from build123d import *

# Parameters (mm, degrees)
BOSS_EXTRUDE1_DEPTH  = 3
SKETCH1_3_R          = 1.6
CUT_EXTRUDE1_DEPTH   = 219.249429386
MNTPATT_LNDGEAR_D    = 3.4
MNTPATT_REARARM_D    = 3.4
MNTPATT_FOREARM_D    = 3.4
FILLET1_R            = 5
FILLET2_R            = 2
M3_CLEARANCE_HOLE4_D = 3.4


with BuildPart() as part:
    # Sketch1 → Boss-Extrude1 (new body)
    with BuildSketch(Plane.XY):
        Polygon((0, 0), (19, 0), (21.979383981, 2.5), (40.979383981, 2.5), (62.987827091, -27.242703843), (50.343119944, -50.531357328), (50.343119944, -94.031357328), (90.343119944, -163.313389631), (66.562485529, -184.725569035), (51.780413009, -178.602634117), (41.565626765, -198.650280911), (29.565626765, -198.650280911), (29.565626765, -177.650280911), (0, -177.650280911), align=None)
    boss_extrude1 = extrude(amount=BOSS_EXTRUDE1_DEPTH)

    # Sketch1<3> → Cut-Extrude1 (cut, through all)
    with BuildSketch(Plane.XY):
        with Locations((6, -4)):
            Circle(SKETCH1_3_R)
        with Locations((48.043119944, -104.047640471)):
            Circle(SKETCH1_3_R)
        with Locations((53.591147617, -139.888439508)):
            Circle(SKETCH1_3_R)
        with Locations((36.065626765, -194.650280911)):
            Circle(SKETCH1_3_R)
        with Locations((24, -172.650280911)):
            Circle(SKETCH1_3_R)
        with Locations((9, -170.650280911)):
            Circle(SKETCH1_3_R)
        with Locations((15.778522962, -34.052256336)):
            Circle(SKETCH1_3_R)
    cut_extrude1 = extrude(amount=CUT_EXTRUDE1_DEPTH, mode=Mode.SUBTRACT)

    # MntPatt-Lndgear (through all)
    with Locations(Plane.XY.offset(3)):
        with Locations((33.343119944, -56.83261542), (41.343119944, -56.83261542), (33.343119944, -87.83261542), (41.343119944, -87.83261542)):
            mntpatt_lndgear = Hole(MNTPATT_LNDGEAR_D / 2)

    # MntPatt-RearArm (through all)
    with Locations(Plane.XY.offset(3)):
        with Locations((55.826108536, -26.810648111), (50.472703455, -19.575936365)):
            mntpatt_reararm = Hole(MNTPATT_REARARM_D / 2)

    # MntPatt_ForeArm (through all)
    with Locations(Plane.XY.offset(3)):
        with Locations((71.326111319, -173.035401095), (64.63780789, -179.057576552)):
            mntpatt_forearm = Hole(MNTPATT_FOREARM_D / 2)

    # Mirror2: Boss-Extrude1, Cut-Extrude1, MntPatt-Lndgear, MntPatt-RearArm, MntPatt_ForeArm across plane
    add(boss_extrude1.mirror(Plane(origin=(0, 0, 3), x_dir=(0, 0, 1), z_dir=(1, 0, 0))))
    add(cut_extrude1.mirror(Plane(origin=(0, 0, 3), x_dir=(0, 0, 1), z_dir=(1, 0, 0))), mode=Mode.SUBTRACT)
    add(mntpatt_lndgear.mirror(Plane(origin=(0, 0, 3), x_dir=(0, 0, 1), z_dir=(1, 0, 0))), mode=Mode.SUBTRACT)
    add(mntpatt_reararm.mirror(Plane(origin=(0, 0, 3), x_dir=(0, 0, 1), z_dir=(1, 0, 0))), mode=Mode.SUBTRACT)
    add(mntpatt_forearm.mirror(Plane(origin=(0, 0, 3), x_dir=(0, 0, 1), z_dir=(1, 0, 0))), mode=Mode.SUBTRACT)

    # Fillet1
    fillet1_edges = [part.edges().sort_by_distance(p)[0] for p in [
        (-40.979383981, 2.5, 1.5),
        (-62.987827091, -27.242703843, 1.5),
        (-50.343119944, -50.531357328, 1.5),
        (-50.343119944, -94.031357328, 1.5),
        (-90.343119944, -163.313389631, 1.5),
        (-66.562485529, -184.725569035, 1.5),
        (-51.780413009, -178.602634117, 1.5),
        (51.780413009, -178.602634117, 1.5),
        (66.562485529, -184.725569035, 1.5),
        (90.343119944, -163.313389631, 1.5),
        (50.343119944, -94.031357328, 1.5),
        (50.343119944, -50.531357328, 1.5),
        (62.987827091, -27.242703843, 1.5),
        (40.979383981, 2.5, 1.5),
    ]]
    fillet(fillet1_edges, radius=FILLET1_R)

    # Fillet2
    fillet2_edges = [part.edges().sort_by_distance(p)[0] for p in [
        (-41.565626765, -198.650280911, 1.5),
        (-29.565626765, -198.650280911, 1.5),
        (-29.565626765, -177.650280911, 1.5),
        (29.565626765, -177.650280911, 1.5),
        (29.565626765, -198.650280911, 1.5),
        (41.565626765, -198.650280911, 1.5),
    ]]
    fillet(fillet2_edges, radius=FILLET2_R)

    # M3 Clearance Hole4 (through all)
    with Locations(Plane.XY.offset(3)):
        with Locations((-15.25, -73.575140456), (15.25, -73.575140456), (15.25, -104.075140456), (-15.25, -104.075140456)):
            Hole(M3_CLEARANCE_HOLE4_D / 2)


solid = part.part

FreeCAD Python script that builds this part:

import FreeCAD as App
import Part
import Sketcher
Q = App.Units.Quantity


def edges_at(feature, points):
    """Names of the edges that pass closest to the given points."""
    edges = feature.Shape.Edges
    near = lambda p: min(range(len(edges)), key=lambda i: edges[i].distToShape(Part.Vertex(*p))[0])
    return sorted({f"Edge{near(p) + 1}" for p in points})

doc = App.newDocument("Part")
body = doc.addObject("PartDesign::Body", "Body")

# Sketch on XY plane
sketch1 = body.newObject("Sketcher::SketchObject", "Sketch")
sketch1.AttachmentSupport = (doc.getObject("XY_Plane"), [""])
sketch1.MapMode = "FlatFace"
sketch1.addGeometry([
    Part.LineSegment(App.Vector(19, 0, 0), App.Vector(0, 0, 0)),  # 0
    Part.LineSegment(App.Vector(0, 0, 0), App.Vector(0, -177.7, 0)),  # 1
    Part.LineSegment(App.Vector(0, -177.7, 0), App.Vector(29.6, -177.7, 0)),  # 2
    Part.LineSegment(App.Vector(29.6, -177.7, 0), App.Vector(29.6, -198.7, 0)),  # 3
    Part.LineSegment(App.Vector(29.6, -198.7, 0), App.Vector(41.6, -198.7, 0)),  # 4
    Part.LineSegment(App.Vector(41.6, -198.7, 0), App.Vector(51.8, -178.6, 0)),  # 5
    Part.LineSegment(App.Vector(51.8, -178.6, 0), App.Vector(66.6, -184.7, 0)),  # 6
    Part.LineSegment(App.Vector(66.6, -184.7, 0), App.Vector(90.3, -163.3, 0)),  # 7
    Part.LineSegment(App.Vector(90.3, -163.3, 0), App.Vector(50.3, -94, 0)),  # 8
    Part.LineSegment(App.Vector(50.3, -94, 0), App.Vector(50.3, -50.5, 0)),  # 9
    Part.LineSegment(App.Vector(50.3, -50.5, 0), App.Vector(63, -27.2, 0)),  # 10
    Part.LineSegment(App.Vector(63, -27.2, 0), App.Vector(41, 2.5, 0)),  # 11
    Part.LineSegment(App.Vector(41, 2.5, 0), App.Vector(22, 2.5, 0)),  # 12
    Part.LineSegment(App.Vector(22, 2.5, 0), App.Vector(19, 0, 0)),  # 13
], False)
sketch1.addConstraint([
    Sketcher.Constraint("Coincident", 0, 2, 1, 1),
    Sketcher.Constraint("Coincident", 1, 2, 2, 1),
    Sketcher.Constraint("Coincident", 2, 2, 3, 1),
    Sketcher.Constraint("Coincident", 3, 2, 4, 1),
    Sketcher.Constraint("Coincident", 4, 2, 5, 1),
    Sketcher.Constraint("Coincident", 5, 2, 6, 1),
    Sketcher.Constraint("Coincident", 6, 2, 7, 1),
    Sketcher.Constraint("Coincident", 7, 2, 8, 1),
    Sketcher.Constraint("Coincident", 8, 2, 9, 1),
    Sketcher.Constraint("Coincident", 9, 2, 10, 1),
    Sketcher.Constraint("Coincident", 10, 2, 11, 1),
    Sketcher.Constraint("Coincident", 11, 2, 12, 1),
    Sketcher.Constraint("Coincident", 12, 2, 13, 1),
    Sketcher.Constraint("Coincident", 13, 2, 0, 1),
    Sketcher.Constraint("Horizontal", 0),
    Sketcher.Constraint("Vertical", 1),
    Sketcher.Constraint("Horizontal", 2),
    Sketcher.Constraint("Vertical", 3),
    Sketcher.Constraint("Horizontal", 4),
    Sketcher.Constraint("Vertical", 9),
    Sketcher.Constraint("Horizontal", 12),
    Sketcher.Constraint("Coincident", 0, 2, -1, 1),
    Sketcher.Constraint("Equal", 0, 12),
    Sketcher.Constraint("DistanceX", 0, 2, 0, 1, Q("19 mm")),
    Sketcher.Constraint("DistanceX", 4, 1, 4, 2, Q("12 mm")),
    Sketcher.Constraint("DistanceY", 3, 2, 3, 1, Q("21 mm")),
    Sketcher.Constraint("Angle", 5, Q("63 deg")),
    Sketcher.Constraint("Angle", 7, Q("42 deg")),
    Sketcher.Constraint("Angle", 8, Q("120 deg")),
    Sketcher.Constraint("Angle", 13, Q("-140 deg")),
    Sketcher.Constraint("Distance", 6, Q("16 mm")),
    Sketcher.Constraint("Distance", 7, Q("32 mm")),
    Sketcher.Constraint("Distance", 8, Q("80 mm")),
    Sketcher.Constraint("Distance", 11, Q("37 mm")),
    Sketcher.Constraint("DistanceY", 9, 1, 9, 2, Q("43.5 mm")),
    Sketcher.Constraint("Angle", 6, Q("-22.5 deg")),
    Sketcher.Constraint("Angle", 10, Q("61.5 deg")),
    Sketcher.Constraint("Angle", 11, Q("126.5 deg")),
    Sketcher.Constraint("Distance", 5, Q("22.5 mm")),
    Sketcher.Constraint("Distance", 10, Q("26.5 mm")),
    Sketcher.Constraint("DistanceY", -1, 1, 11, 2, Q("2.5 mm")),
])
pad1 = body.newObject("PartDesign::Pad", "Pad")
pad1.Profile = sketch1
pad1.Length = 3

# Sketch on XY plane
sketch2 = body.newObject("Sketcher::SketchObject", "Sketch001")
sketch2.AttachmentSupport = (doc.getObject("XY_Plane"), [""])
sketch2.MapMode = "FlatFace"
sketch2.addGeometry([
    Part.Circle(App.Vector(6, -4, 0), App.Vector(0, 0, 1), 1.6),  # 0
    Part.Circle(App.Vector(48, -104, 0), App.Vector(0, 0, 1), 1.6),  # 1
    Part.Circle(App.Vector(53.6, -139.9, 0), App.Vector(0, 0, 1), 1.6),  # 2
    Part.Circle(App.Vector(36.1, -194.7, 0), App.Vector(0, 0, 1), 1.6),  # 3
    Part.Circle(App.Vector(24, -172.7, 0), App.Vector(0, 0, 1), 1.6),  # 4
    Part.Circle(App.Vector(9, -170.7, 0), App.Vector(0, 0, 1), 1.6),  # 5
    Part.Circle(App.Vector(15.8, -34.1, 0), App.Vector(0, 0, 1), 1.6),  # 6
], False)
sketch2.addConstraint([
    Sketcher.Constraint("Equal", 0, 1),
    Sketcher.Constraint("Equal", 1, 2),
    Sketcher.Constraint("Equal", 2, 3),
    Sketcher.Constraint("Equal", 3, 4),
    Sketcher.Constraint("Equal", 4, 5),
    Sketcher.Constraint("Equal", 5, 6),
    Sketcher.Constraint("Diameter", 0, Q("3.2 mm")),
    Sketcher.Constraint("DistanceX", -1, 1, 0, 3, Q("6 mm")),
    Sketcher.Constraint("DistanceY", 0, 3, -1, 1, Q("4 mm")),
    Sketcher.Constraint("DistanceX", -1, 1, 4, 3, Q("24 mm")),
    Sketcher.Constraint("DistanceX", -1, 1, 5, 3, Q("9 mm")),
    Sketcher.Constraint("DistanceY", 3, 3, 4, 3, Q("22 mm")),
    Sketcher.Constraint("DistanceY", 4, 3, 5, 3, Q("2 mm")),
    Sketcher.Constraint("DistanceY", 2, 3, 1, 3, Q("35.840799 mm")),
    Sketcher.Constraint("DistanceX", -1, 1, 1, 3, Q("48.04312 mm")),
    Sketcher.Constraint("DistanceY", 1, 3, -1, 1, Q("104.04764 mm")),
    Sketcher.Constraint("DistanceY", 3, 3, -1, 1, Q("194.650281 mm")),
    Sketcher.Constraint("DistanceX", 3, 3, 2, 3, Q("17.525521 mm")),
    Sketcher.Constraint("DistanceX", -1, 1, 2, 3, Q("53.591148 mm")),
    Sketcher.Constraint("DistanceX", -1, 1, 6, 3, Q("15.778523 mm")),
    Sketcher.Constraint("DistanceY", 6, 3, -1, 1, Q("34.052256 mm")),
])
pocket1 = body.newObject("PartDesign::Pocket", "Pocket")
pocket1.Profile = sketch2
pocket1.Type = "ThroughAll"
pocket1.Reversed = True

# Sketch on XY plane
sketch3 = body.newObject("Sketcher::SketchObject", "Sketch002")
sketch3.AttachmentSupport = (doc.getObject("XY_Plane"), [""])
sketch3.MapMode = "FlatFace"
sketch3.AttachmentOffset = App.Placement(App.Vector(0, 0, 3), App.Rotation())
sketch3.addGeometry([
    Part.Circle(App.Vector(33.3, -56.8, 0), App.Vector(0, 0, 1), 1.7),
    Part.Circle(App.Vector(41.3, -56.8, 0), App.Vector(0, 0, 1), 1.7),
    Part.Circle(App.Vector(33.3, -87.8, 0), App.Vector(0, 0, 1), 1.7),
    Part.Circle(App.Vector(41.3, -87.8, 0), App.Vector(0, 0, 1), 1.7),
], False)
sketch3.addConstraint([
    Sketcher.Constraint("Equal", 0, 1),
    Sketcher.Constraint("Equal", 1, 2),
    Sketcher.Constraint("Equal", 2, 3),
    Sketcher.Constraint("Horizontal", 0, 3, 1, 3),
    Sketcher.Constraint("Horizontal", 2, 3, 3, 3),
    Sketcher.Constraint("Vertical", 0, 3, 2, 3),
    Sketcher.Constraint("Vertical", 1, 3, 3, 3),
    Sketcher.Constraint("Diameter", 0, Q("3.4 mm")),
    Sketcher.Constraint("DistanceX", 0, 3, 1, 3, Q("8 mm")),
    Sketcher.Constraint("DistanceY", 2, 3, 0, 3, Q("31 mm")),
    Sketcher.Constraint("DistanceX", -1, 1, 0, 3, Q("33.34312 mm")),
    Sketcher.Constraint("DistanceY", 0, 3, -1, 1, Q("56.832615 mm")),
])
doc.recompute()
hole = body.newObject("PartDesign::Hole", "Hole")
hole.Profile = sketch3
hole.ThreadType = "None"
hole.Diameter = 3.4
hole.DepthType = "ThroughAll"

# Sketch on XY plane
sketch4 = body.newObject("Sketcher::SketchObject", "Sketch003")
sketch4.AttachmentSupport = (doc.getObject("XY_Plane"), [""])
sketch4.MapMode = "FlatFace"
sketch4.AttachmentOffset = App.Placement(App.Vector(0, 0, 3), App.Rotation())
sketch4.addGeometry([
    Part.Circle(App.Vector(55.8, -26.8, 0), App.Vector(0, 0, 1), 1.7),
    Part.Circle(App.Vector(50.5, -19.6, 0), App.Vector(0, 0, 1), 1.7),
], False)
sketch4.addConstraint([
    Sketcher.Constraint("Equal", 0, 1),
    Sketcher.Constraint("Diameter", 0, Q("3.4 mm")),
    Sketcher.Constraint("DistanceX", -1, 1, 0, 3, Q("55.826109 mm")),
    Sketcher.Constraint("DistanceY", 0, 3, -1, 1, Q("26.810648 mm")),
    Sketcher.Constraint("DistanceY", 0, 3, 1, 3, Q("7.234712 mm")),
    Sketcher.Constraint("DistanceX", -1, 1, 1, 3, Q("50.472703 mm")),
])
doc.recompute()
hole2 = body.newObject("PartDesign::Hole", "Hole001")
hole2.Profile = sketch4
hole2.ThreadType = "None"
hole2.Diameter = 3.4
hole2.DepthType = "ThroughAll"

# Sketch on XY plane
sketch5 = body.newObject("Sketcher::SketchObject", "Sketch004")
sketch5.AttachmentSupport = (doc.getObject("XY_Plane"), [""])
sketch5.MapMode = "FlatFace"
sketch5.AttachmentOffset = App.Placement(App.Vector(0, 0, 3), App.Rotation())
sketch5.addGeometry([
    Part.Circle(App.Vector(71.3, -173, 0), App.Vector(0, 0, 1), 1.7),
    Part.Circle(App.Vector(64.6, -179.1, 0), App.Vector(0, 0, 1), 1.7),
], False)
sketch5.addConstraint([
    Sketcher.Constraint("Equal", 0, 1),
    Sketcher.Constraint("Diameter", 0, Q("3.4 mm")),
    Sketcher.Constraint("DistanceY", 0, 3, -1, 1, Q("173.035401 mm")),
    Sketcher.Constraint("DistanceX", -1, 1, 0, 3, Q("71.326111 mm")),
    Sketcher.Constraint("DistanceX", -1, 1, 1, 3, Q("64.637808 mm")),
    Sketcher.Constraint("DistanceY", 1, 3, -1, 1, Q("179.057577 mm")),
])
doc.recompute()
hole3 = body.newObject("PartDesign::Hole", "Hole002")
hole3.Profile = sketch5
hole3.ThreadType = "None"
hole3.Diameter = 3.4
hole3.DepthType = "ThroughAll"
doc.recompute()

mirrored = body.newObject("PartDesign::Mirrored", "Mirrored")
mirrored.Originals = [pad1, pocket1, hole, hole2, hole3]
mirrored.MirrorPlane = (doc.getObject("YZ_Plane"), [""])
body.Tip = mirrored
doc.recompute()

fillet = body.newObject("PartDesign::Fillet", "Fillet")
fillet.Base = (mirrored, edges_at(mirrored, [
    (-40.979, 2.5, 1.5),
    (-62.988, -27.243, 1.5),
    (-50.343, -50.531, 1.5),
    (-50.343, -94.031, 1.5),
    (-90.343, -163.313, 1.5),
    (-66.562, -184.726, 1.5),
    (-51.78, -178.603, 1.5),
    (51.78, -178.603, 1.5),
    (66.562, -184.726, 1.5),
    (90.343, -163.313, 1.5),
    (50.343, -94.031, 1.5),
    (50.343, -50.531, 1.5),
    (62.988, -27.243, 1.5),
    (40.979, 2.5, 1.5),
]))
fillet.Radius = 5
doc.recompute()

fillet2 = body.newObject("PartDesign::Fillet", "Fillet001")
fillet2.Base = (fillet, edges_at(fillet, [
    (-41.566, -198.65, 1.5),
    (-29.566, -198.65, 1.5),
    (-29.566, -177.65, 1.5),
    (29.566, -177.65, 1.5),
    (29.566, -198.65, 1.5),
    (41.566, -198.65, 1.5),
]))
fillet2.Radius = 2

# Sketch on XY plane
sketch6 = body.newObject("Sketcher::SketchObject", "Sketch005")
sketch6.AttachmentSupport = (doc.getObject("XY_Plane"), [""])
sketch6.MapMode = "FlatFace"
sketch6.AttachmentOffset = App.Placement(App.Vector(0, 0, 3), App.Rotation())
sketch6.addGeometry([
    Part.Circle(App.Vector(-15.2, -73.6, 0), App.Vector(0, 0, 1), 1.7),
    Part.Circle(App.Vector(15.2, -73.6, 0), App.Vector(0, 0, 1), 1.7),
    Part.Circle(App.Vector(15.2, -104.1, 0), App.Vector(0, 0, 1), 1.7),
    Part.Circle(App.Vector(-15.2, -104.1, 0), App.Vector(0, 0, 1), 1.7),
], False)
sketch6.addConstraint([
    Sketcher.Constraint("Equal", 0, 1),
    Sketcher.Constraint("Equal", 1, 2),
    Sketcher.Constraint("Equal", 2, 3),
    Sketcher.Constraint("Symmetric", 0, 3, 1, 3, -2),
    Sketcher.Constraint("Symmetric", 2, 3, 3, 3, -2),
    Sketcher.Constraint("Vertical", 1, 3, 2, 3),
    Sketcher.Constraint("Diameter", 0, Q("3.4 mm")),
    Sketcher.Constraint("DistanceX", 0, 3, 1, 3, Q("30.5 mm")),
    Sketcher.Constraint("DistanceY", 2, 3, 1, 3, Q("30.5 mm")),
    Sketcher.Constraint("DistanceY", 0, 3, -1, 1, Q("73.57514 mm")),
])
doc.recompute()
hole4 = body.newObject("PartDesign::Hole", "Hole003")
hole4.Profile = sketch6
hole4.ThreadType = "None"
hole4.Diameter = 3.4
hole4.DepthType = "ThroughAll"

doc.recompute()
